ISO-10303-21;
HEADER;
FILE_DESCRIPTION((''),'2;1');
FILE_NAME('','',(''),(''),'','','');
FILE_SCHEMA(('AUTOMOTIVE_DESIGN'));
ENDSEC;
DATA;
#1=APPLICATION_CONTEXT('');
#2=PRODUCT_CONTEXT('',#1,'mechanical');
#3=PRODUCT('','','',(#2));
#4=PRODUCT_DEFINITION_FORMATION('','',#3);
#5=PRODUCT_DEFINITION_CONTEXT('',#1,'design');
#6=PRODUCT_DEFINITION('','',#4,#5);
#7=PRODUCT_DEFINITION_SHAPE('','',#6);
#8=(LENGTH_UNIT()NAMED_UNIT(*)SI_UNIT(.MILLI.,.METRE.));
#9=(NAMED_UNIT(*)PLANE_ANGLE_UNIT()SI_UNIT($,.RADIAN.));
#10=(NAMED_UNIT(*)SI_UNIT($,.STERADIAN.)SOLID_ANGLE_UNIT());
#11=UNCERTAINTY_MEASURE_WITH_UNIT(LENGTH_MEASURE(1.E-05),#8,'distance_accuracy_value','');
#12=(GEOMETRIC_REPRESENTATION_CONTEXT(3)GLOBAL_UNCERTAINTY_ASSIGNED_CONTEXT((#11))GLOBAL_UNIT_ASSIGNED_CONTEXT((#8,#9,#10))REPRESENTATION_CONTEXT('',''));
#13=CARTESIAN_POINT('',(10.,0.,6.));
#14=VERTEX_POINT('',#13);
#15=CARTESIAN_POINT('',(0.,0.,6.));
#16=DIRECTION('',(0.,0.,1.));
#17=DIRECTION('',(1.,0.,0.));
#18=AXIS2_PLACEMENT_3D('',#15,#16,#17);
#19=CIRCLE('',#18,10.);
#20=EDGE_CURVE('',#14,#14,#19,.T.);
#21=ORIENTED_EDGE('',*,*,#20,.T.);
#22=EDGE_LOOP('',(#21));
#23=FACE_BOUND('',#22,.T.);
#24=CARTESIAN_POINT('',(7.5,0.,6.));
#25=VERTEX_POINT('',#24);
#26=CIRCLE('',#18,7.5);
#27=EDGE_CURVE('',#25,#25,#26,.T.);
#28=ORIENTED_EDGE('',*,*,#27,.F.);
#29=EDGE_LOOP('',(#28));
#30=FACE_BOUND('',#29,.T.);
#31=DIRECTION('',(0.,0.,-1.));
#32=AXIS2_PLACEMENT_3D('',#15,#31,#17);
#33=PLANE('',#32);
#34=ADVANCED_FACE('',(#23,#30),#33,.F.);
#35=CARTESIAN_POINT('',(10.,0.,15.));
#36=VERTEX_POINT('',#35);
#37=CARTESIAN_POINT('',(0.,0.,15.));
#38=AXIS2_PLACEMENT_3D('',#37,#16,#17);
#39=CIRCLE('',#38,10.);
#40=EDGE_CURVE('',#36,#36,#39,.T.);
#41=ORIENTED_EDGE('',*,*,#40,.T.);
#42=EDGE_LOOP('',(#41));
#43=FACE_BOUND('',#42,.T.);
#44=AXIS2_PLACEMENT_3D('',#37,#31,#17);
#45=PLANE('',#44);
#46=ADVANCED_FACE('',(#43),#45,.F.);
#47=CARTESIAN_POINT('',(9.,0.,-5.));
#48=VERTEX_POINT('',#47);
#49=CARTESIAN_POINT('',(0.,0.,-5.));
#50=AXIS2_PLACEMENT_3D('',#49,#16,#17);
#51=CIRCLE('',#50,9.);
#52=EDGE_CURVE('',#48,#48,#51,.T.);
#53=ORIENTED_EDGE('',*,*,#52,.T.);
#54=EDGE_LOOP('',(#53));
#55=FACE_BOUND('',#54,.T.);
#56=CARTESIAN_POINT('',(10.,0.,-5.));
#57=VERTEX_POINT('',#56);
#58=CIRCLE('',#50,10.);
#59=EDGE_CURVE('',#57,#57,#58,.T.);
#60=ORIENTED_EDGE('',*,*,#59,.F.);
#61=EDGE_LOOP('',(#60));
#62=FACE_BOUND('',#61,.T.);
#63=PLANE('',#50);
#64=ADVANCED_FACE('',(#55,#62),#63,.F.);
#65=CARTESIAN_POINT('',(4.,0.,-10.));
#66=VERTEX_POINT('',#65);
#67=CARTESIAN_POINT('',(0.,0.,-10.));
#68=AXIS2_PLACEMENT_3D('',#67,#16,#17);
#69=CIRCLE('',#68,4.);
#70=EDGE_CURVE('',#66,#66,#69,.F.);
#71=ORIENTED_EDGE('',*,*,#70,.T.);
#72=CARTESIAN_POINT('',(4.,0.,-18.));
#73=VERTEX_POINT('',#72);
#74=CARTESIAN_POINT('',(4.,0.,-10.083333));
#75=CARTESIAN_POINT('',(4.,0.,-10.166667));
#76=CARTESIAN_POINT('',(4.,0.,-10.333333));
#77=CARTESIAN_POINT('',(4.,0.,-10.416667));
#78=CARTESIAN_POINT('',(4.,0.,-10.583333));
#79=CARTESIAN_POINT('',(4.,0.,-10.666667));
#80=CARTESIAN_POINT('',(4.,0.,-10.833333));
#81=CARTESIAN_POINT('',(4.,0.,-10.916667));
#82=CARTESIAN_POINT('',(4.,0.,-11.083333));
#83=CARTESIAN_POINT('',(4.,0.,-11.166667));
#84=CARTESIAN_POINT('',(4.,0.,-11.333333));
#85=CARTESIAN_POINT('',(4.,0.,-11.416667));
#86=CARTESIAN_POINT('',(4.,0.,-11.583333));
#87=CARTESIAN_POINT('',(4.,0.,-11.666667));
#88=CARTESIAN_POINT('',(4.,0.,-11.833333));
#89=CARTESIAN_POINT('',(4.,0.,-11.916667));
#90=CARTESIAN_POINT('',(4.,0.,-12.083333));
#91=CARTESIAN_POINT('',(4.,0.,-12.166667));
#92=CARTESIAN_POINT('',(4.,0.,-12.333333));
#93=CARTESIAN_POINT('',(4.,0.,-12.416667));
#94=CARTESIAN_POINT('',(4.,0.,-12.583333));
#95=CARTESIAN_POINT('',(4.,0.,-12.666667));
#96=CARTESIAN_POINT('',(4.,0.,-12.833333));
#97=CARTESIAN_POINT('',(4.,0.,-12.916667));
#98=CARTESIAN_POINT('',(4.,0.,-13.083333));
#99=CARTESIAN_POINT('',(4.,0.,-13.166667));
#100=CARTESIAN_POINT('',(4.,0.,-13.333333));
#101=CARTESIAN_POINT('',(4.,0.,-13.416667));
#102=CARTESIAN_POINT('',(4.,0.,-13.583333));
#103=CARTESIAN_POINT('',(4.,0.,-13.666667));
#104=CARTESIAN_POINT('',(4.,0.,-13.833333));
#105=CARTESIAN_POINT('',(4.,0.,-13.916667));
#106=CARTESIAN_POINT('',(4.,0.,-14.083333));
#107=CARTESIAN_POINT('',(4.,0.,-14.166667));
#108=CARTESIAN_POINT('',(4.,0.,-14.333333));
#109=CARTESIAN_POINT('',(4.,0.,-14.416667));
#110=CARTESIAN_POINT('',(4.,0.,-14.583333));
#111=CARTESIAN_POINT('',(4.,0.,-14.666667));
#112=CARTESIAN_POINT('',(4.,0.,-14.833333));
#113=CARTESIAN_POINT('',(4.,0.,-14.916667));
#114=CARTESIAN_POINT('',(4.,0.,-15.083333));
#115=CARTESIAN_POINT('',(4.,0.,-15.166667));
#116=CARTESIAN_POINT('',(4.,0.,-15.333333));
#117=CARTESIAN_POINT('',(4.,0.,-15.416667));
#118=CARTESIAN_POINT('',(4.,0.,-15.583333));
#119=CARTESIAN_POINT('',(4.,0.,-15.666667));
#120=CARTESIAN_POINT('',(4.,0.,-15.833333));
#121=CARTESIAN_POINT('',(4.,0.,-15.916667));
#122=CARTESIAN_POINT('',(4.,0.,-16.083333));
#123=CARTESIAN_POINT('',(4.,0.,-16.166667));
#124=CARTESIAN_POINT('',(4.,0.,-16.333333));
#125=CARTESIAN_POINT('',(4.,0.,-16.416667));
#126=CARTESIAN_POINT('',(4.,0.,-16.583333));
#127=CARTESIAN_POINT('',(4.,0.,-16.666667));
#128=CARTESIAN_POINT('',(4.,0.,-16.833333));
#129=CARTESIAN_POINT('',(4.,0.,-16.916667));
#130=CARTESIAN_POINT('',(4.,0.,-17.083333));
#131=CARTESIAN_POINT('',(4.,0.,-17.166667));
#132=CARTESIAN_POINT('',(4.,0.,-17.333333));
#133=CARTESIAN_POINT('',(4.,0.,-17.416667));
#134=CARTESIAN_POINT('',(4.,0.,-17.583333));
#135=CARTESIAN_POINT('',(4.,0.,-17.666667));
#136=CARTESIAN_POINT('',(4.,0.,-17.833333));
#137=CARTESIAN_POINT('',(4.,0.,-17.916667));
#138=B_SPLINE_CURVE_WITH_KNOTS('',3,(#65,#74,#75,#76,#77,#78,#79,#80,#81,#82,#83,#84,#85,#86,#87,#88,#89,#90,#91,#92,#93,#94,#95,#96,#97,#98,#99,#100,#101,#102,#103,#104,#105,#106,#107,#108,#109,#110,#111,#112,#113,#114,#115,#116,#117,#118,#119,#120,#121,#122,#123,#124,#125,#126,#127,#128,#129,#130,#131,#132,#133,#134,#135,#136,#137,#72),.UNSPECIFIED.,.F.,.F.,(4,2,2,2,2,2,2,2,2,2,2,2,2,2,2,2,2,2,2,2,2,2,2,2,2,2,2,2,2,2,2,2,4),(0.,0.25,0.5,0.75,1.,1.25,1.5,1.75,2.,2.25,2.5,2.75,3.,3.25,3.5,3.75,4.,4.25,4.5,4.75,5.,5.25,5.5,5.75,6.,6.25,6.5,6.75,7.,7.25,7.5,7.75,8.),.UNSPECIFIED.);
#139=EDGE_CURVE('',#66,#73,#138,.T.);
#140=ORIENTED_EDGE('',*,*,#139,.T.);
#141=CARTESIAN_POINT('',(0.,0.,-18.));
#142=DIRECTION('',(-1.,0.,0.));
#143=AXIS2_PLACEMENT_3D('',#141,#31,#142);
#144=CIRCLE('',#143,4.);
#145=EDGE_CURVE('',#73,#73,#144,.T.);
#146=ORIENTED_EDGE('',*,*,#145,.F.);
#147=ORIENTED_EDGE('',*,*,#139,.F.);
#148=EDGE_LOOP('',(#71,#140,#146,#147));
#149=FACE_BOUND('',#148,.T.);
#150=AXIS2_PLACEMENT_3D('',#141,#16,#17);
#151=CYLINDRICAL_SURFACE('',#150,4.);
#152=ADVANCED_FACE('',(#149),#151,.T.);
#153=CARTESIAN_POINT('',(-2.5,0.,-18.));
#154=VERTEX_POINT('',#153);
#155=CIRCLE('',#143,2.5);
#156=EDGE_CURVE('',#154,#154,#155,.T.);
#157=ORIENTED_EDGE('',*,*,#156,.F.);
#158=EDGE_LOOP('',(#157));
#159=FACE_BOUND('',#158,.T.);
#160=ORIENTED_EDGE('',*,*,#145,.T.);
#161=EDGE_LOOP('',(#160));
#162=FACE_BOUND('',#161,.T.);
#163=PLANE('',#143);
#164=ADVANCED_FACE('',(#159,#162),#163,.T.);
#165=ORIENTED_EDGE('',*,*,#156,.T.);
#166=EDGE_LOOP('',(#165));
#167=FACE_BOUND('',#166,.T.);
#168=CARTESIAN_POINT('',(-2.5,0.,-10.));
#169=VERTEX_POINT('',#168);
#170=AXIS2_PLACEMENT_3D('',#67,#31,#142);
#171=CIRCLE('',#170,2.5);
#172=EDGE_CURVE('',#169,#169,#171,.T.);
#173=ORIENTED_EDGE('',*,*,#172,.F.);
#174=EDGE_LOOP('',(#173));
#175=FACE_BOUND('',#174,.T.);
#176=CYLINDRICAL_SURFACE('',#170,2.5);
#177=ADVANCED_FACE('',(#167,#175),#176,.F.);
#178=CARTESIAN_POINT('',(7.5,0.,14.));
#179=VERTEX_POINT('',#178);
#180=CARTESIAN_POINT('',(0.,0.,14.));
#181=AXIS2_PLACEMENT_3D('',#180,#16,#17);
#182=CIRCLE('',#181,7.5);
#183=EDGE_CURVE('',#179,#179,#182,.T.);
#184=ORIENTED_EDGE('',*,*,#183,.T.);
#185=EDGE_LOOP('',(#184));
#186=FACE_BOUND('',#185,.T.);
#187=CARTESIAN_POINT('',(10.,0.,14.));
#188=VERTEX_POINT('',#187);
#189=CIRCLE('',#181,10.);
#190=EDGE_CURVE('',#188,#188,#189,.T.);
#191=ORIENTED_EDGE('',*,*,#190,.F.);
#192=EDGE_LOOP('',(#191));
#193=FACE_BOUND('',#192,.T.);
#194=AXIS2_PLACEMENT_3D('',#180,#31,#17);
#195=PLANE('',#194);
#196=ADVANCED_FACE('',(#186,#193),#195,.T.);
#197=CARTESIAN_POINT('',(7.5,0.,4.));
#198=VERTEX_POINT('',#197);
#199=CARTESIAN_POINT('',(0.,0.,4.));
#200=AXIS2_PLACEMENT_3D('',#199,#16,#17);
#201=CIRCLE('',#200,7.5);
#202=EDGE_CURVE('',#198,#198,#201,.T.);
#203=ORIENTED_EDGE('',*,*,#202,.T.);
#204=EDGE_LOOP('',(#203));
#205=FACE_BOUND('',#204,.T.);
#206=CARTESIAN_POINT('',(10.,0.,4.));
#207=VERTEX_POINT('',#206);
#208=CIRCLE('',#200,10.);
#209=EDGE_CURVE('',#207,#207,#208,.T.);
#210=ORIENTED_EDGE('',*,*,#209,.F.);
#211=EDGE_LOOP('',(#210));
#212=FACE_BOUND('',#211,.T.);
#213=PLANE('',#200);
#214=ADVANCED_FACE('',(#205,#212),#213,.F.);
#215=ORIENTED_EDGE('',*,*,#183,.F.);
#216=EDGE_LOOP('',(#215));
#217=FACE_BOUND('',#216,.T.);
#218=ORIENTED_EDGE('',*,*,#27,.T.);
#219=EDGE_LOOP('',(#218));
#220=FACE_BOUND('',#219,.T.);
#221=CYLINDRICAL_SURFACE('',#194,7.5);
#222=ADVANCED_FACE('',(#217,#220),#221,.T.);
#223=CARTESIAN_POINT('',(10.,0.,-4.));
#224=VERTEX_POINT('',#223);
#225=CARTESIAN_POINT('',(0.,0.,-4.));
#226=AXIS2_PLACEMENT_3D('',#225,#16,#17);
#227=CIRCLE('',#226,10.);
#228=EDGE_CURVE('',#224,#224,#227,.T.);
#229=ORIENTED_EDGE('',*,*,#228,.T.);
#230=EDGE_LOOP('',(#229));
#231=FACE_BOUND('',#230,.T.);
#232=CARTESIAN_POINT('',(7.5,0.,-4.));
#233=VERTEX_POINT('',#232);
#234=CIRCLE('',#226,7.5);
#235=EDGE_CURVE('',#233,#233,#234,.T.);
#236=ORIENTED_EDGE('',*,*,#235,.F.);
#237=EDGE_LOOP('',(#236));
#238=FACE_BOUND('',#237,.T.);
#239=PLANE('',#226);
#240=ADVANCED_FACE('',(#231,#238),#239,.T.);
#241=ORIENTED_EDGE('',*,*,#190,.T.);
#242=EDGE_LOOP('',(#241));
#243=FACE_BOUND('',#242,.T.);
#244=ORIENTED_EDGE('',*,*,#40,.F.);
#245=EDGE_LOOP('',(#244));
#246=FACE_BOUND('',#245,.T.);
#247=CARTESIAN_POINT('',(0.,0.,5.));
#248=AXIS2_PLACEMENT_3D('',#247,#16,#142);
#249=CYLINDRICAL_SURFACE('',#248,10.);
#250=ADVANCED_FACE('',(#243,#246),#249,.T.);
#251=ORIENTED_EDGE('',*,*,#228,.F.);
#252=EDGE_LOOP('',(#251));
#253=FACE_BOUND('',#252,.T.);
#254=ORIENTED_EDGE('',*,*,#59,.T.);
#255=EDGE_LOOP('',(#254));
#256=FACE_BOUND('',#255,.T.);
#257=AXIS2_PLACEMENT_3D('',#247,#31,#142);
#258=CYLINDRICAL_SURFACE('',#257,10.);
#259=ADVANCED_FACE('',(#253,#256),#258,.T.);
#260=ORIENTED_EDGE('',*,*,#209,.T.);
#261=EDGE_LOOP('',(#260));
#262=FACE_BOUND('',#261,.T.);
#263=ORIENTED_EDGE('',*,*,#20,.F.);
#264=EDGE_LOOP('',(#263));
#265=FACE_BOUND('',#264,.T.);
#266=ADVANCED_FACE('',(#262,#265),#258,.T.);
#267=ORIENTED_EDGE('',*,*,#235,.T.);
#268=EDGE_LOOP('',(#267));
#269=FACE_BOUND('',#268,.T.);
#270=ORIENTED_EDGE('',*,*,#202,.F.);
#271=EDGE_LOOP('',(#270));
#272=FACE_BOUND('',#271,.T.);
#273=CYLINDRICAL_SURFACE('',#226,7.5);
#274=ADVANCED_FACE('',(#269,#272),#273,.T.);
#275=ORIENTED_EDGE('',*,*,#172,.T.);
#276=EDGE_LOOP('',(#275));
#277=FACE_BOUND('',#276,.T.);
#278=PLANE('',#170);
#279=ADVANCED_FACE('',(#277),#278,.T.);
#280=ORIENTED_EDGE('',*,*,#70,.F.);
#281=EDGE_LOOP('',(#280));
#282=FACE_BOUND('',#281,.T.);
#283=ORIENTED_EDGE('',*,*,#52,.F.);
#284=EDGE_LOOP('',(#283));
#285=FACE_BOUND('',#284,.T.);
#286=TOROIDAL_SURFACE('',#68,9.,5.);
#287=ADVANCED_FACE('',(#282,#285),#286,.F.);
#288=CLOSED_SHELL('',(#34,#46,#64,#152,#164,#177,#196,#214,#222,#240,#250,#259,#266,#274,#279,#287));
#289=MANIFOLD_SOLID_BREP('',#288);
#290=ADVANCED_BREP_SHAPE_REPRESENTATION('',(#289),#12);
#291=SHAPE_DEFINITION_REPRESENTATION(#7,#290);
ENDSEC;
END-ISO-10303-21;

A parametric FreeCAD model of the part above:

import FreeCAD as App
import Part
import Sketcher

V = App.Vector


def edges_at(feature, points):
    """Names of the edges that pass closest to the given points."""
    edges = feature.Shape.Edges
    near = lambda p: min(range(len(edges)), key=lambda i: edges[i].distToShape(Part.Vertex(*p))[0])
    return sorted({f"Edge{near(p) + 1}" for p in points})

doc = App.newDocument("Part")
body = doc.addObject("PartDesign::Body", "Body")

# Sketch on XY plane
sketch1 = body.newObject("Sketcher::SketchObject", "Sketch")
sketch1.AttachmentSupport = (doc.getObject("XY_Plane"), [""])
sketch1.MapMode = "FlatFace"
sketch1.addGeometry(Part.Circle(V(0, 0, 0), V(0, 0, 1), 10), False)
sketch1.addConstraint([
    Sketcher.Constraint("Coincident", 0, 3, -1, 1),
    Sketcher.Constraint("Diameter", 0, 20.0),
])
pad1 = body.newObject("PartDesign::Pad", "Pad")
pad1.Profile = sketch1
pad1.Length = 10
pad1.Midplane = True

# Sketch on XY plane
sketch2 = body.newObject("Sketcher::SketchObject", "Sketch001")
sketch2.AttachmentSupport = (doc.getObject("XY_Plane"), [""])
sketch2.MapMode = "FlatFace"
sketch2.addGeometry([
    Part.Circle(V(0, 0, 0), V(0, 0, 1), 10),
    Part.Circle(V(0, 0, 0), V(0, 0, 1), 7.5),
], False)
sketch2.addConstraint([
    Sketcher.Constraint("Coincident", 0, 3, -1, 1),
    Sketcher.Constraint("Coincident", 1, 3, -1, 1),
    Sketcher.Constraint("Diameter", 0, 20.0),
    Sketcher.Constraint("Diameter", 1, 15.0),
])
pocket1 = body.newObject("PartDesign::Pocket", "Pocket")
pocket1.Profile = sketch2
pocket1.Length = 8
pocket1.Midplane = True
body2 = doc.addObject("PartDesign::Body", "Body001")
doc.recompute()

body2.BaseFeature = body
doc.recompute()

mirroring = doc.addObject("Part::Mirroring", "Mirroring")
mirroring.Source = body
mirroring.Base = V(0, 0, 5)
mirroring.Normal = V(0, 0, 1)
body3 = doc.addObject("PartDesign::Body", "Body002")
body3.BaseFeature = mirroring
boolean = body2.newObject("PartDesign::Boolean", "Boolean")
boolean.Type = "Fuse"
boolean.addObjects([body3])
doc.recompute()

# Sketch on XY plane
sketch3 = body2.newObject("Sketcher::SketchObject", "Sketch002")
sketch3.AttachmentSupport = (doc.getObject("XY_Plane001"), [""])
sketch3.MapMode = "FlatFace"
sketch3.AttachmentOffset = App.Placement(V(0, 0, -5), App.Rotation())
sketch3.addGeometry(Part.Circle(V(0, 0, 0), V(0, 0, 1), 4), False)
sketch3.addConstraint([
    Sketcher.Constraint("Coincident", 0, 3, -1, 1),
    Sketcher.Constraint("Diameter", 0, 8.0),
])
pad2 = body2.newObject("PartDesign::Pad", "Pad001")
pad2.Profile = sketch3
pad2.Length = 13
pad2.Reversed = True

# Sketch on XY plane
sketch4 = body2.newObject("Sketcher::SketchObject", "Sketch003")
sketch4.AttachmentSupport = (doc.getObject("XY_Plane001"), [""])
sketch4.MapMode = "FlatFace"
sketch4.AttachmentOffset = App.Placement(V(0, 0, -18), App.Rotation())
sketch4.addGeometry(Part.Circle(V(0, 0, 0), V(0, 0, 1), 2.5), False)
sketch4.addConstraint([
    Sketcher.Constraint("Coincident", 0, 3, -1, 1),
    Sketcher.Constraint("Diameter", 0, 5.0),
])
pocket2 = body2.newObject("PartDesign::Pocket", "Pocket001")
pocket2.Profile = sketch4
pocket2.Length = 8
pocket2.Reversed = True
doc.recompute()

fillet = body2.newObject("PartDesign::Fillet", "Fillet")
fillet.Base = (pocket2, edges_at(pocket2, [(-4, 0, -5)]))
fillet.Radius = 5
mirroring.Visibility = False

doc.recompute()
